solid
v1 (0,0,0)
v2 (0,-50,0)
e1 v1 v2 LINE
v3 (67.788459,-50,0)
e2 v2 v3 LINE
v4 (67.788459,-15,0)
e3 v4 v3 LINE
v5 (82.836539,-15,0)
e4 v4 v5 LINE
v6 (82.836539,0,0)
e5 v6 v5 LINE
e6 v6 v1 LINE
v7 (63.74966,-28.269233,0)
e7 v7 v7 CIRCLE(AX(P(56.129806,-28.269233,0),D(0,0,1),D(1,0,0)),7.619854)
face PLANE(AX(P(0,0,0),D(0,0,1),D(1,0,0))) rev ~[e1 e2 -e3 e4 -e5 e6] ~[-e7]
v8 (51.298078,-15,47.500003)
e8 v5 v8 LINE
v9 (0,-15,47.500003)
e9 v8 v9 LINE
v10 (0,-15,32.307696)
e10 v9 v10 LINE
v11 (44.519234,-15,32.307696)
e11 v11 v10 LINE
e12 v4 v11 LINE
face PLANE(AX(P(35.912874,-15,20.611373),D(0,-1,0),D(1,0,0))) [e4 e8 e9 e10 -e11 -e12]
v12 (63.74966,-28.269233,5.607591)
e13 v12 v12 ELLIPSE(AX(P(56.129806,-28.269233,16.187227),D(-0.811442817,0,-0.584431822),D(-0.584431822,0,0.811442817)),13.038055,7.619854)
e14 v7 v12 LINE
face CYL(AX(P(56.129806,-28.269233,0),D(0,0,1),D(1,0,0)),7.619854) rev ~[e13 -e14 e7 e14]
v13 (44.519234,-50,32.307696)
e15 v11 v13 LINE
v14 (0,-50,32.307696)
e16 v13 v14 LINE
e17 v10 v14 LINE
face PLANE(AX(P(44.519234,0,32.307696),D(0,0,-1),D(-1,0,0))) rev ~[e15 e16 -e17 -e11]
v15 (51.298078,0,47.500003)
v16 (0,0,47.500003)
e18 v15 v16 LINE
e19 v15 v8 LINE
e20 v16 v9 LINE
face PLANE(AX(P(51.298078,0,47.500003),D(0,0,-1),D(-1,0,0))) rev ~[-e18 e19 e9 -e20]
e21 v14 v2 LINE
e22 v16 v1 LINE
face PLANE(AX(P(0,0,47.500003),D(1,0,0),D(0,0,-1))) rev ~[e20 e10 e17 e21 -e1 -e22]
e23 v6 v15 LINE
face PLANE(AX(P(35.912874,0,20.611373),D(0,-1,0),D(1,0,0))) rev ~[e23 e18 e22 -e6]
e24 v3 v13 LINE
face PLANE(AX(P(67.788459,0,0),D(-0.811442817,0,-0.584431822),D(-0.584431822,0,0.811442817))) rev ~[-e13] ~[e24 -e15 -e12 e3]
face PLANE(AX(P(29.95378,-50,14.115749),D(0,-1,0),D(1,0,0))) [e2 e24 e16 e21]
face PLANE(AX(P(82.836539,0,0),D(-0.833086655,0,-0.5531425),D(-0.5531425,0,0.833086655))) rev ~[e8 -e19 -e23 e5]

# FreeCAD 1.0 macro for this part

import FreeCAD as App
import Part
import Sketcher
from FreeCAD import Vector
Q = App.Units.Quantity

doc = App.newDocument("Part")
body = doc.addObject("PartDesign::Body", "Body")

sketch1 = doc.addObject("Sketcher::SketchObject", "Sketch")
body.addObject(sketch1)
sketch1.AttachmentSupport = (doc.XZ_Plane, [""])
sketch1.MapMode = "FlatFace"
sketch1.addGeometry([
    Part.LineSegment(Vector(0, 32, 0), Vector(0, 0, 0)),
    Part.LineSegment(Vector(0, 0, 0), Vector(68, 0, 0)),
    Part.LineSegment(Vector(68, 0, 0), Vector(45, 32, 0)),
    Part.LineSegment(Vector(45, 32, 0), Vector(0, 32, 0)),
], False)
sketch1.addConstraint([
    Sketcher.Constraint("Coincident", 0, 2, 1, 1),
    Sketcher.Constraint("Coincident", 1, 2, 2, 1),
    Sketcher.Constraint("Coincident", 2, 2, 3, 1),
    Sketcher.Constraint("Coincident", 3, 2, 0, 1),
    Sketcher.Constraint("Vertical", 0),
    Sketcher.Constraint("Horizontal", 1),
    Sketcher.Constraint("Horizontal", 3),
    Sketcher.Constraint("Coincident", 0, 2, -1, 1),
    Sketcher.Constraint("DistanceX", 1, 1, 1, 2, Q("67.788459 mm")),
    Sketcher.Constraint("DistanceX", 3, 2, 3, 1, Q("44.519234 mm")),
    Sketcher.Constraint("DistanceY", 0, 2, 0, 1, Q("32.307696 mm")),
])
pad1 = doc.addObject("PartDesign::Pad", "Pad")
body.addObject(pad1)
pad1.Profile = sketch1
pad1.Length = 50

sketch2 = doc.addObject("Sketcher::SketchObject", "Sketch001")
body.addObject(sketch2)
sketch2.AttachmentSupport = (doc.XZ_Plane, [""])
sketch2.MapMode = "FlatFace"
sketch2.addGeometry([
    Part.LineSegment(Vector(0, 48, 0), Vector(0, 0, 0)),
    Part.LineSegment(Vector(0, 0, 0), Vector(83, 0, 0)),
    Part.LineSegment(Vector(83, 0, 0), Vector(51, 48, 0)),
    Part.LineSegment(Vector(51, 48, 0), Vector(0, 48, 0)),
], False)
sketch2.addConstraint([
    Sketcher.Constraint("Coincident", 0, 2, 1, 1),
    Sketcher.Constraint("Coincident", 1, 2, 2, 1),
    Sketcher.Constraint("Coincident", 2, 2, 3, 1),
    Sketcher.Constraint("Coincident", 3, 2, 0, 1),
    Sketcher.Constraint("Vertical", 0),
    Sketcher.Constraint("Horizontal", 1),
    Sketcher.Constraint("Horizontal", 3),
    Sketcher.Constraint("Coincident", 0, 2, -1, 1),
    Sketcher.Constraint("DistanceX", 1, 1, 1, 2, Q("82.836539 mm")),
    Sketcher.Constraint("DistanceX", 3, 2, 3, 1, Q("51.298078 mm")),
    Sketcher.Constraint("Distance", 2, Q("57.016882 mm")),
])
pad2 = doc.addObject("PartDesign::Pad", "Pad001")
body.addObject(pad2)
pad2.Profile = sketch2
pad2.Length = 15

sketch3 = doc.addObject("Sketcher::SketchObject", "Sketch002")
body.addObject(sketch3)
sketch3.AttachmentSupport = (doc.XY_Plane, [""])
sketch3.MapMode = "FlatFace"
sketch3.addGeometry(Part.Circle(Vector(56, -28, 0), Vector(0, 0, 1), 8), False)
sketch3.addConstraint([
    Sketcher.Constraint("Diameter", 0, Q("15.239708 mm")),
    Sketcher.Constraint("DistanceX", -1, 1, 0, 3, Q("56.129806 mm")),
    Sketcher.Constraint("DistanceY", 0, 3, -1, 1, Q("28.269233 mm")),
])
pocket1 = doc.addObject("PartDesign::Pocket", "Pocket")
body.addObject(pocket1)
pocket1.Profile = sketch3
pocket1.Length = 590
pocket1.Midplane = True

doc.recompute()
